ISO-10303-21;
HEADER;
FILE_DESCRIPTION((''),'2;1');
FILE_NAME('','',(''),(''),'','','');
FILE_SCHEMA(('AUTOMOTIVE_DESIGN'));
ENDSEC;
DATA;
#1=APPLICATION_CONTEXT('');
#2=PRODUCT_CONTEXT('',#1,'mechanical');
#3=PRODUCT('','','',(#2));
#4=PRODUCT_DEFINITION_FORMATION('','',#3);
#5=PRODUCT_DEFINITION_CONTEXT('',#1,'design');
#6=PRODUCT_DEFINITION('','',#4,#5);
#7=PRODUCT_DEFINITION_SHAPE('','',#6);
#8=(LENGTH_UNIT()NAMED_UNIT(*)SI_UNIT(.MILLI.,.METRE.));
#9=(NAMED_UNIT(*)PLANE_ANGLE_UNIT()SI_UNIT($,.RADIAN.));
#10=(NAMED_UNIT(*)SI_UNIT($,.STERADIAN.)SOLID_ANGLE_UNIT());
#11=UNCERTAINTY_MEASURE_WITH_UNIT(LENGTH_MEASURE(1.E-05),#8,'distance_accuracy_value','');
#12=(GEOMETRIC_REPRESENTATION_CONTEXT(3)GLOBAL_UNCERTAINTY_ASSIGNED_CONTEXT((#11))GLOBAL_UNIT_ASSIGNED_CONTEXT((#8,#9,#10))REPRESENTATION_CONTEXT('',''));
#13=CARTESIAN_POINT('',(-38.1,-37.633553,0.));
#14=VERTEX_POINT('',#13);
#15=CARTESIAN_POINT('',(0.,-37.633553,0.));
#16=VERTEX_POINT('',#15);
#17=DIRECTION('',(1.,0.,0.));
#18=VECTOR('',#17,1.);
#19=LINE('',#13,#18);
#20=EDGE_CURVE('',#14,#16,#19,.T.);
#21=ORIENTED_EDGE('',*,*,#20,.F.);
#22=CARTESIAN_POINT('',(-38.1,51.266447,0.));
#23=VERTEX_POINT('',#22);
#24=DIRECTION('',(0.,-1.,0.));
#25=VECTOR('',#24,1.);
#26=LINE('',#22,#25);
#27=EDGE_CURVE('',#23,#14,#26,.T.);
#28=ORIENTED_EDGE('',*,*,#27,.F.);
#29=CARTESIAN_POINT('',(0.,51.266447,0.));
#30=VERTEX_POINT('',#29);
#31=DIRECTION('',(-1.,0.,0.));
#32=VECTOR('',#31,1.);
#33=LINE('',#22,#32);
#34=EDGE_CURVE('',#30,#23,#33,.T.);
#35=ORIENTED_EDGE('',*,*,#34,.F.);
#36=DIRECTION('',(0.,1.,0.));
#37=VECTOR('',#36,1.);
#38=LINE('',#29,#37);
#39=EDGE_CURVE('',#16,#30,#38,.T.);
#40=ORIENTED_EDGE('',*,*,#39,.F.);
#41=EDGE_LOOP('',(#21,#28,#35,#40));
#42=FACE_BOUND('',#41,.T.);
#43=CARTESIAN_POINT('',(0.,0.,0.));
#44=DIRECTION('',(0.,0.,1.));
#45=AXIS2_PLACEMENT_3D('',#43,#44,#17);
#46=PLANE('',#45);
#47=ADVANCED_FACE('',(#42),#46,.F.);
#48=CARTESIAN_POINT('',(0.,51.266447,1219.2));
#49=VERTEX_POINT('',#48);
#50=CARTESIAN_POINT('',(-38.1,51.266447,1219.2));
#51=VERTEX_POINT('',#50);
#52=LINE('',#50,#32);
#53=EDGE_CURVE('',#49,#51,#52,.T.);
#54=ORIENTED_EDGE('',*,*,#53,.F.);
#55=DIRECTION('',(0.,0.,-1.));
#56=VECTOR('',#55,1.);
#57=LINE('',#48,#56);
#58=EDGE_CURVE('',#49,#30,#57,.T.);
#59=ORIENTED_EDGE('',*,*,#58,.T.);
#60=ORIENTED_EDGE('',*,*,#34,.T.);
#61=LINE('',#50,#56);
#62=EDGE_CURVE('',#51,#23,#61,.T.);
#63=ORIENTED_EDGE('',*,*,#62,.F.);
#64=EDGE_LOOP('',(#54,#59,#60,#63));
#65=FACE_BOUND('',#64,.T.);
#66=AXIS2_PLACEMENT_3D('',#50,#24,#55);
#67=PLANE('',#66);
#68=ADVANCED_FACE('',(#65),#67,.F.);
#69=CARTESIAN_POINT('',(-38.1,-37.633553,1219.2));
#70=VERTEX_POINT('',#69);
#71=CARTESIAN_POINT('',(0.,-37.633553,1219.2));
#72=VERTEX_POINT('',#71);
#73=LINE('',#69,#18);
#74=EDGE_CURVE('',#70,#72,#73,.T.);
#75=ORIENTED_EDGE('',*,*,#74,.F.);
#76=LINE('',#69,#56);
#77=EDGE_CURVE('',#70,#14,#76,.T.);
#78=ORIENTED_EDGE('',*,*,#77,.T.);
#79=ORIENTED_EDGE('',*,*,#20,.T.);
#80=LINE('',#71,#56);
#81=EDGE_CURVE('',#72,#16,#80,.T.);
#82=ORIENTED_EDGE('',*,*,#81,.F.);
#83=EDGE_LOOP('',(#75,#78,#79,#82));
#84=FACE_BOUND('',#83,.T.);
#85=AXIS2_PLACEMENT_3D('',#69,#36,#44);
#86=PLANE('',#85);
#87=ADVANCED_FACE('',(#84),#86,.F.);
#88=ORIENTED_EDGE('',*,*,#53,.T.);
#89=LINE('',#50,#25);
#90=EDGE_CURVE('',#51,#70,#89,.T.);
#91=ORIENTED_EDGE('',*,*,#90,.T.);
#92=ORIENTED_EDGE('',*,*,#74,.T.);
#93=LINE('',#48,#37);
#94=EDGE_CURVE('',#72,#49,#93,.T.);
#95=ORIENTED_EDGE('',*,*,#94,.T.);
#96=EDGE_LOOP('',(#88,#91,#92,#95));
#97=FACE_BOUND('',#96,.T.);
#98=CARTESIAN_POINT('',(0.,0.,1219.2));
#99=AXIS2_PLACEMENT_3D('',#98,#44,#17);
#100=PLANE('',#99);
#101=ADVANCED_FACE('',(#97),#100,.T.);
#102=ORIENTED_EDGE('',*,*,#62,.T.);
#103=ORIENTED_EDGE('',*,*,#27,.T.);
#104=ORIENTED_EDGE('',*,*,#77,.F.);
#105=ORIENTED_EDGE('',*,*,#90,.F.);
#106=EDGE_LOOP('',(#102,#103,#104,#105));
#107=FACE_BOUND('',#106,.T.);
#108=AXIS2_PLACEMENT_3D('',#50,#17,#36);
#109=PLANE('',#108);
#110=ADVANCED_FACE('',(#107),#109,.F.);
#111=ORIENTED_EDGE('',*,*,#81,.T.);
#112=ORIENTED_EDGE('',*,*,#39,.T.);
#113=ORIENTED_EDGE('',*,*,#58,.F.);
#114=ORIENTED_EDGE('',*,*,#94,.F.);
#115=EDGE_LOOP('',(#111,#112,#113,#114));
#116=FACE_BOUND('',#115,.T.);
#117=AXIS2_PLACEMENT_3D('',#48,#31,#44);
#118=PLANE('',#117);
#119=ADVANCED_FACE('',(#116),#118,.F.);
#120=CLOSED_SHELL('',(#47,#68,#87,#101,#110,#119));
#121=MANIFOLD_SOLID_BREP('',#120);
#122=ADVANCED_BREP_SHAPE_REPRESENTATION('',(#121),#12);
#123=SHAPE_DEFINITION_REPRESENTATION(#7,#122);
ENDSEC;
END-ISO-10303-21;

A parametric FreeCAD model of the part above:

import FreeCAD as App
import Part
import Sketcher
from FreeCAD import Vector
Q = App.Units.Quantity

doc = App.newDocument("Part")
body = doc.addObject("PartDesign::Body", "Body")

# Sketch on XY plane
sketch1 = doc.addObject("Sketcher::SketchObject", "Sketch")
body.addObject(sketch1)
sketch1.AttachmentSupport = (doc.XY_Plane, [""])
sketch1.MapMode = "FlatFace"
sketch1.addGeometry([
    Part.LineSegment(Vector(-38, 51, 0), Vector(-38, -38, 0)),
    Part.LineSegment(Vector(-38, -38, 0), Vector(0, -38, 0)),
    Part.LineSegment(Vector(0, -38, 0), Vector(0, 51, 0)),
    Part.LineSegment(Vector(0, 51, 0), Vector(-38, 51, 0)),
], False)
sketch1.addConstraint([
    Sketcher.Constraint("Coincident", 0, 2, 1, 1),
    Sketcher.Constraint("Coincident", 1, 2, 2, 1),
    Sketcher.Constraint("Coincident", 2, 2, 3, 1),
    Sketcher.Constraint("Coincident", 3, 2, 0, 1),
    Sketcher.Constraint("Vertical", 0),
    Sketcher.Constraint("Horizontal", 1),
    Sketcher.Constraint("Vertical", 2),
    Sketcher.Constraint("Horizontal", 3),
    Sketcher.Constraint("PointOnObject", 1, 2, -2),
    Sketcher.Constraint("DistanceX", 1, 1, 1, 2, Q("1.5 in")),
    Sketcher.Constraint("DistanceY", 0, 2, 0, 1, Q("3.5 in")),
    Sketcher.Constraint("DistanceY", 0, 2, -1, 1, 37.633553),
])
pad1 = doc.addObject("PartDesign::Pad", "Pad")
body.addObject(pad1)
pad1.Profile = sketch1
pad1.Length = Q("48 in")

doc.recompute()
